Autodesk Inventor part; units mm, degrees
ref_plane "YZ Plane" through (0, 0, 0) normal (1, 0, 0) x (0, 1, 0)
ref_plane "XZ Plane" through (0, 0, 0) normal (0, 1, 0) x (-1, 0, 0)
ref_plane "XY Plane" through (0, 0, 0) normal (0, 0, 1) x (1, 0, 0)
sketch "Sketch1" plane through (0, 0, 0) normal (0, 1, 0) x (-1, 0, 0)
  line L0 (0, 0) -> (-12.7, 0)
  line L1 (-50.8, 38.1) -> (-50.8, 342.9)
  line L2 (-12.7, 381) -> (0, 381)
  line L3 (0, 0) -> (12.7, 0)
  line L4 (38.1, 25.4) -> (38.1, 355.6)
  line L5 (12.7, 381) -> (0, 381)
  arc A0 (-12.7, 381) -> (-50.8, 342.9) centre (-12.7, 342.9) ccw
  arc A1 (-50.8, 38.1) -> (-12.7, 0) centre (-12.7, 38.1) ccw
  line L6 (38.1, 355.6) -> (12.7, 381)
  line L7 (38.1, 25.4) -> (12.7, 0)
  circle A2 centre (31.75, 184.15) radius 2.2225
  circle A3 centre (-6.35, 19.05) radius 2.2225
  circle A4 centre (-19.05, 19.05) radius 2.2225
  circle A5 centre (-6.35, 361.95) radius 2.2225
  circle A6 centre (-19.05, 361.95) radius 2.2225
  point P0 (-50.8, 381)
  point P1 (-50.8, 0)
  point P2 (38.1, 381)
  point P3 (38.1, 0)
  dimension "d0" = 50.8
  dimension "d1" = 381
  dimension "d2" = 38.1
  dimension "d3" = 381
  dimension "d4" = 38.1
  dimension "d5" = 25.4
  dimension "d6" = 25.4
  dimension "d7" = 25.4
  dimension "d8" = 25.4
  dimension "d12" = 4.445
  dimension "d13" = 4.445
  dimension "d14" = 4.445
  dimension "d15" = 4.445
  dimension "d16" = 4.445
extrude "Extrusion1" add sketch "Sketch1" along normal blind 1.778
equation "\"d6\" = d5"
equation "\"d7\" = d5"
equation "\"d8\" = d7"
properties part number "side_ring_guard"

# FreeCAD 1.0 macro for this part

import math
import FreeCAD as App
import Part
import Sketcher
Q = App.Units.Quantity

doc = App.newDocument("Part")
body = doc.addObject("PartDesign::Body", "Body")

sketch1 = body.newObject("Sketcher::SketchObject", "Sketch")
sketch1.AttachmentSupport = (doc.getObject("XZ_Plane"), [""])
sketch1.MapMode = "FlatFace"
sketch1.addGeometry(Part.LineSegment(App.Vector(12.7, 0, 0), App.Vector(-12.7, 0, 0)), False)
sketch1.addGeometry(Part.LineSegment(App.Vector(-12.7, 0, 0), App.Vector(-38.1, 25.4, 0)), False)
sketch1.addGeometry(Part.LineSegment(App.Vector(-38.1, 25.4, 0), App.Vector(-38.1, 355.6, 0)), False)
sketch1.addGeometry(Part.LineSegment(App.Vector(-38.1, 355.6, 0), App.Vector(-12.7, 381, 0)), False)
sketch1.addGeometry(Part.LineSegment(App.Vector(-12.7, 381, 0), App.Vector(12.7, 381, 0)), False)
sketch1.addGeometry(Part.ArcOfCircle(Part.Circle(App.Vector(12.7, 342.9, 0), App.Vector(0, 0, 1), 38.1), math.radians(0), math.radians(90)), False)
sketch1.addGeometry(Part.LineSegment(App.Vector(50.8, 342.9, 0), App.Vector(50.8, 38.1, 0)), False)
sketch1.addGeometry(Part.ArcOfCircle(Part.Circle(App.Vector(12.7, 38.1, 0), App.Vector(0, 0, 1), 38.1), math.radians(-90), math.radians(0)), False)
sketch1.addGeometry(Part.Circle(App.Vector(19.05, 19.05, 0), App.Vector(0, 0, 1), 2.2225), False)
sketch1.addGeometry(Part.Circle(App.Vector(6.35, 19.05, 0), App.Vector(0, 0, 1), 2.2225), False)
sketch1.addGeometry(Part.Circle(App.Vector(-31.75, 184.15, 0), App.Vector(0, 0, 1), 2.2225), False)
sketch1.addGeometry(Part.Circle(App.Vector(19.05, 361.95, 0), App.Vector(0, 0, 1), 2.2225), False)
sketch1.addGeometry(Part.Circle(App.Vector(6.35, 361.95, 0), App.Vector(0, 0, 1), 2.2225), False)
sketch1.addConstraint(Sketcher.Constraint("Coincident", 0, 2, 1, 1))
sketch1.addConstraint(Sketcher.Constraint("Coincident", 1, 2, 2, 1))
sketch1.addConstraint(Sketcher.Constraint("Coincident", 2, 2, 3, 1))
sketch1.addConstraint(Sketcher.Constraint("Coincident", 3, 2, 4, 1))
sketch1.addConstraint(Sketcher.Constraint("Tangent", 4, 2, 5, 2))
sketch1.addConstraint(Sketcher.Constraint("Tangent", 5, 1, 6, 1))
sketch1.addConstraint(Sketcher.Constraint("Tangent", 6, 2, 7, 2))
sketch1.addConstraint(Sketcher.Constraint("Tangent", 7, 1, 0, 1))
sketch1.addConstraint(Sketcher.Constraint("Horizontal", 0))
sketch1.addConstraint(Sketcher.Constraint("Vertical", 2))
sketch1.addConstraint(Sketcher.Constraint("Horizontal", 4))
sketch1.addConstraint(Sketcher.Constraint("Vertical", 6))
sketch1.addConstraint(Sketcher.Constraint("Equal", 5, 7))
sketch1.addConstraint(Sketcher.Constraint("Equal", 8, 9))
sketch1.addConstraint(Sketcher.Constraint("Equal", 9, 10))
sketch1.addConstraint(Sketcher.Constraint("Equal", 10, 11))
sketch1.addConstraint(Sketcher.Constraint("Equal", 11, 12))
sketch1.addConstraint(Sketcher.Constraint("Symmetric", 0, 2, 7, 1, -1, 1))
sketch1.addConstraint(Sketcher.Constraint("Perpendicular", 1, 3))
sketch1.addConstraint(Sketcher.Constraint("Horizontal", 8, 3, 9, 3))
sketch1.addConstraint(Sketcher.Constraint("Horizontal", 11, 3, 12, 3))
sketch1.addConstraint(Sketcher.Constraint("Vertical", 8, 3, 11, 3))
sketch1.addConstraint(Sketcher.Constraint("Vertical", 9, 3, 12, 3))
sketch1.addConstraint(Sketcher.Constraint("Vertical", 0, 2, 3, 2))
sketch1.addConstraint(Sketcher.Constraint("Equal", 1, 3))
sketch1.addConstraint(Sketcher.Constraint("Radius", 5, Q("1.5 in")))
sketch1.addConstraint(Sketcher.Constraint("DistanceX", 0, 2, 0, 1, Q("1 in")))
sketch1.addConstraint(Sketcher.Constraint("Diameter", 8, Q("0.175 in")))
sketch1.addConstraint(Sketcher.Constraint("DistanceY", -1, 1, 1, 2, Q("1 in")))
sketch1.addConstraint(Sketcher.Constraint("DistanceY", -1, 1, 3, 2, Q("15 in")))
sketch1.addConstraint(Sketcher.Constraint("DistanceX", 10, 3, 8, 3, Q("2 in")))
sketch1.addConstraint(Sketcher.Constraint("DistanceX", 10, 3, 9, 3, Q("1.5 in")))
sketch1.addConstraint(Sketcher.Constraint("DistanceY", 10, 3, 11, 3, Q("7 in")))
sketch1.addConstraint(Sketcher.Constraint("DistanceY", 9, 3, 10, 3, Q("6.5 in")))
sketch1.addConstraint(Sketcher.Constraint("DistanceX", -1, 1, 8, 3, Q("0.75 in")))
sketch1.addConstraint(Sketcher.Constraint("DistanceY", -1, 1, 8, 3, Q("0.75 in")))
pad1 = body.newObject("PartDesign::Pad", "Pad")
pad1.Profile = sketch1
pad1.Length = Q("0.07 in")
pad1.Reversed = True

doc.recompute()
